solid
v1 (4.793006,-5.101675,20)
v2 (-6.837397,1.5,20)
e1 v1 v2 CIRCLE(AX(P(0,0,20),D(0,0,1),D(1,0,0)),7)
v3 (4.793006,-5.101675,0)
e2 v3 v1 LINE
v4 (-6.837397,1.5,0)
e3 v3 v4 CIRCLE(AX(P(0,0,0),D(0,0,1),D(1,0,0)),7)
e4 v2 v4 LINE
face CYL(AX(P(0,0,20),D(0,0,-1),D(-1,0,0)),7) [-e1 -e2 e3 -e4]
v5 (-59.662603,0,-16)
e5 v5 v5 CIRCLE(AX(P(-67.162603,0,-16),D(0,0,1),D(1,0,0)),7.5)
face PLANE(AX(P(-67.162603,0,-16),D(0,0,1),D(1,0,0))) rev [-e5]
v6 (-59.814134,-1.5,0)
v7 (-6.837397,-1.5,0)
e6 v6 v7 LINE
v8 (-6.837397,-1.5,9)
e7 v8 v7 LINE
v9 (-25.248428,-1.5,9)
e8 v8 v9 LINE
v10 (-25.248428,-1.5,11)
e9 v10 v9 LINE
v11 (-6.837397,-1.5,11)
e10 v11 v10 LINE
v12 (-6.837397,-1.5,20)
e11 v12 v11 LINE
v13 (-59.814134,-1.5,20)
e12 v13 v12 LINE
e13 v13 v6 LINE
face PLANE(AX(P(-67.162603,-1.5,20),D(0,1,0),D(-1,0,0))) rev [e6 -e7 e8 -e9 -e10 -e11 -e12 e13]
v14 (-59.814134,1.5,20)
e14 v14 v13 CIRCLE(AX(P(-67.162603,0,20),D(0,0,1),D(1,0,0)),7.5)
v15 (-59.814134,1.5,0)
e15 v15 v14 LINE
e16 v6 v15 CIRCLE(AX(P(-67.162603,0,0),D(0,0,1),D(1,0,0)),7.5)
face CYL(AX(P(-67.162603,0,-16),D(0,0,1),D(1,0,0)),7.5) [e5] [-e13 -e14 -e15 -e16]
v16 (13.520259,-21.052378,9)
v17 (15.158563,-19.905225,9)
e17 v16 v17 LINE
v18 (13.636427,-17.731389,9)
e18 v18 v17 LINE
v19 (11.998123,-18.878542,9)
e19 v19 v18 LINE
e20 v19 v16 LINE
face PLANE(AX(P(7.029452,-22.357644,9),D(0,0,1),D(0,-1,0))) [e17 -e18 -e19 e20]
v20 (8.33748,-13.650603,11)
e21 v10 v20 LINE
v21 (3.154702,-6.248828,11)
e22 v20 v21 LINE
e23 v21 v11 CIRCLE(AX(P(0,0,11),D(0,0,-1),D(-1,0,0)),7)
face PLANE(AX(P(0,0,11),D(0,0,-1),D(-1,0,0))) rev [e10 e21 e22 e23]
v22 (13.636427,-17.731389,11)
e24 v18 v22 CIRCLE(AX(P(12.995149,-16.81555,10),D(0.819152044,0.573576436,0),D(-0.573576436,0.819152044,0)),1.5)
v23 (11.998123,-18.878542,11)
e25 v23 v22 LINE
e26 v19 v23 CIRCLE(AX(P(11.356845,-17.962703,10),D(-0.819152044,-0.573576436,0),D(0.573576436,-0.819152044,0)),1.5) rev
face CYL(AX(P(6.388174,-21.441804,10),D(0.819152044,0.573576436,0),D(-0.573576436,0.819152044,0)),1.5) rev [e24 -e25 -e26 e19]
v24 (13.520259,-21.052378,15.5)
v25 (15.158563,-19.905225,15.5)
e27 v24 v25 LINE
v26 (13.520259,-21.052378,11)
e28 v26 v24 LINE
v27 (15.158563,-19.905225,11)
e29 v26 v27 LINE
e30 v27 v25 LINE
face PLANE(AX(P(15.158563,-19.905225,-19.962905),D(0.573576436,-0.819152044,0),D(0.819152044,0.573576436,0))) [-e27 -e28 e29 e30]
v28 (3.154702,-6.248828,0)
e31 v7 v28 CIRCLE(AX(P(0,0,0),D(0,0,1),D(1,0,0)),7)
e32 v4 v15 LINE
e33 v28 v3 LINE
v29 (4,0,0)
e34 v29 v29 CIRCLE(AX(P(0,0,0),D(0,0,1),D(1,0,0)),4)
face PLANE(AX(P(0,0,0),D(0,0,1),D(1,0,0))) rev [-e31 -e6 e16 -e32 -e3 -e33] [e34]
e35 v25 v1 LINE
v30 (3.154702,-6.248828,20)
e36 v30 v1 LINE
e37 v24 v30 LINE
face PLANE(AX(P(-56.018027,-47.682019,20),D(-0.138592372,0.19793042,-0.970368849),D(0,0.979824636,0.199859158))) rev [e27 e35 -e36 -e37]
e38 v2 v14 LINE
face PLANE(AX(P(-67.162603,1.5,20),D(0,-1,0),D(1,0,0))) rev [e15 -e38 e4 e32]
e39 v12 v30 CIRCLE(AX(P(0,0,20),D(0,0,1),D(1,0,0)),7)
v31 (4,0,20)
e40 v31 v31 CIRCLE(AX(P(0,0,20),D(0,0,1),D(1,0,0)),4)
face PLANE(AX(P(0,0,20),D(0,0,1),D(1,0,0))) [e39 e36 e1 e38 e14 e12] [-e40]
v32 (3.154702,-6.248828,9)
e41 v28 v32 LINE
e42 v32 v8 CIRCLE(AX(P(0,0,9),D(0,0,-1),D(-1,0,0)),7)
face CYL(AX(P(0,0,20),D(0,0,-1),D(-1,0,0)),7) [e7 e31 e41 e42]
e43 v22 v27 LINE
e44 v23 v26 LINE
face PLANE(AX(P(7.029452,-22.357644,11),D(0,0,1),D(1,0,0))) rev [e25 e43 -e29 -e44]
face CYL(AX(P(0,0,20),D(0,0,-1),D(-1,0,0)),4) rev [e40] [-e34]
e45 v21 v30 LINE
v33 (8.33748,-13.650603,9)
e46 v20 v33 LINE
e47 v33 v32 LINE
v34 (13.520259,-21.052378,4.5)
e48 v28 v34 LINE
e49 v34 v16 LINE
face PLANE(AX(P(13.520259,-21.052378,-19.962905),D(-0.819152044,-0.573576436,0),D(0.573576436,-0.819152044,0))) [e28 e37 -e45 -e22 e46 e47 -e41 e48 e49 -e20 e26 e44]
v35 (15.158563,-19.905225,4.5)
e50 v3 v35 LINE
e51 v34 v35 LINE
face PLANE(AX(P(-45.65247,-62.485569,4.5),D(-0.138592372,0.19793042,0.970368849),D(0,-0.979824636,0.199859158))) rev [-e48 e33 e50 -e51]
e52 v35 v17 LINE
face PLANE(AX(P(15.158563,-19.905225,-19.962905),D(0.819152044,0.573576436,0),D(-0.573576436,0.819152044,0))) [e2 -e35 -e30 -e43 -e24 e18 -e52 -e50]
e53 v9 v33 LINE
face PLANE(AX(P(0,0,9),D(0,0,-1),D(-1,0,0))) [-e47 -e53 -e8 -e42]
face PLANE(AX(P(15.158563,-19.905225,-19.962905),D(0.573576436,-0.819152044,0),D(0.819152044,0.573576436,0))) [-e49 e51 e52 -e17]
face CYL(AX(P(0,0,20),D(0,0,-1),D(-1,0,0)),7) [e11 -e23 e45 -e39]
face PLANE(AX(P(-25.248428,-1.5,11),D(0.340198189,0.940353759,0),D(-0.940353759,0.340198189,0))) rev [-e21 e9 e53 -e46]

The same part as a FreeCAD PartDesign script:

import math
import FreeCAD as App
import Part
import Sketcher
Q = App.Units.Quantity


def add_polygon(sketch, points):
    """Adds a closed chain of lines whose ends are joined by coincident constraints."""
    first, n = sketch.GeometryCount, len(points)
    for a, b in zip(points, points[1:] + points[:1]):
        sketch.addGeometry(Part.LineSegment(App.Vector(*a, 0), App.Vector(*b, 0)), False)
    for i in range(n):
        sketch.addConstraint(Sketcher.Constraint("Coincident", first + i, 2, first + (i + 1) % n, 1))

doc = App.newDocument("Part")
params = doc.addObject("Spreadsheet::Sheet", "Params")
for row, (alias, value) in enumerate([
    ("sketch1_diameter", "8 mm"),
    ("sketch1_radius", "7 mm"),
    ("sketch1_height", "3 mm"),
    ("pad1_length", "20 mm"),
    ("sketch2_diameter", "15 mm"),
    ("pad2_length", "36 mm"),
    ("sketch3_radius", "7 mm"),
    ("sketch3_length", "2 mm"),
    ("pad3_length", "20 mm"),
    ("sketch4_radius", "1.5 mm"),
    ("sketch4_width", "2 mm"),
    ("pocket1_length", "2 mm"),
    ("pad4_length", "2 mm"),
], start=1):
    params.set(f"A{row}", alias)
    params.set(f"B{row}", "=" + value)
    params.setAlias(f"B{row}", alias)

body = doc.addObject("PartDesign::Body", "Body")

# Sketch on XY plane
sketch1 = body.newObject("Sketcher::SketchObject", "Sketch")
sketch1.AttachmentSupport = (doc.getObject("XY_Plane"), [""])
sketch1.MapMode = "FlatFace"
sketch1.addGeometry([
    Part.LineSegment(App.Vector(-6.837397, 1.5, 0), App.Vector(-67.162603, 1.5, 0)),  # 0
    Part.LineSegment(App.Vector(-67.162603, 1.5, 0), App.Vector(-67.162603, -1.5, 0)),  # 1
    Part.LineSegment(App.Vector(-67.162603, -1.5, 0), App.Vector(-6.837397, -1.5, 0)),  # 2
    Part.ArcOfCircle(Part.Circle(App.Vector(0, 0, 0), App.Vector(0, 0, 1), 7), math.radians(-167.626375), math.radians(167.626375)),  # 3
    Part.Circle(App.Vector(0, 0, 0), App.Vector(0, 0, 1), 4),  # 4
], False)
sketch1.addConstraint([
    Sketcher.Constraint("Coincident", 0, 2, 1, 1),
    Sketcher.Constraint("Coincident", 1, 2, 2, 1),
    Sketcher.Constraint("Coincident", 2, 2, 3, 1),
    Sketcher.Constraint("Coincident", 3, 2, 0, 1),
    Sketcher.Constraint("Horizontal", 0),
    Sketcher.Constraint("Vertical", 1),
    Sketcher.Constraint("Horizontal", 2),
    Sketcher.Constraint("Coincident", 3, 3, -1, 1),
    Sketcher.Constraint("Coincident", 4, 3, -1, 1),
    Sketcher.Constraint("Vertical", 2, 2, 3, 2),
    Sketcher.Constraint("Diameter", 4, 8.0),
    Sketcher.Constraint("Radius", 3, 7.0),
    Sketcher.Constraint("DistanceY", 1, 2, 1, 1, 3.0),
    Sketcher.Constraint("DistanceX", 0, 2, 0, 1, 60.325206),
])
sketch1.setExpression("Constraints[10]", "Params.sketch1_diameter")
sketch1.setExpression("Constraints[11]", "Params.sketch1_radius")
sketch1.setExpression("Constraints[12]", "Params.sketch1_height")
pad1 = body.newObject("PartDesign::Pad", "Pad")
pad1.Profile = sketch1
pad1.setExpression("Length", "Params.pad1_length")

# Sketch on XY plane
sketch2 = body.newObject("Sketcher::SketchObject", "Sketch001")
sketch2.AttachmentSupport = (doc.getObject("XY_Plane"), [""])
sketch2.MapMode = "FlatFace"
sketch2.AttachmentOffset = App.Placement(App.Vector(0, 0, 20), App.Rotation())
sketch2.addGeometry(Part.Circle(App.Vector(-67.162603, 0, 0), App.Vector(0, 0, 1), 7.5), False)
sketch2.addConstraint([
    Sketcher.Constraint("PointOnObject", 0, 3, -1),
    Sketcher.Constraint("Diameter", 0, 15.0),
    Sketcher.Constraint("DistanceX", 0, 3, -1, 1, 67.162603),
])
sketch2.setExpression("Constraints[1]", "Params.sketch2_diameter")
pad2 = body.newObject("PartDesign::Pad", "Pad001")
pad2.Profile = sketch2
pad2.setExpression("Length", "Params.pad2_length")
pad2.Reversed = True

# Sketch on XY plane
sketch3 = body.newObject("Sketcher::SketchObject", "Sketch002")
sketch3.AttachmentSupport = (doc.getObject("XY_Plane"), [""])
sketch3.MapMode = "FlatFace"
sketch3.addGeometry([
    Part.LineSegment(App.Vector(13.520259, -21.052378, 0), App.Vector(15.158563, -19.905225, 0)),
    Part.LineSegment(App.Vector(15.158563, -19.905225, 0), App.Vector(4.793006, -5.101675, 0)),
    Part.ArcOfCircle(Part.Circle(App.Vector(0, 0, 0), App.Vector(0, 0, 1), 7), math.radians(-63.213211), math.radians(-46.786789)),
    Part.LineSegment(App.Vector(3.154702, -6.248828, 0), App.Vector(13.520259, -21.052378, 0)),
], False)
sketch3.addConstraint([
    Sketcher.Constraint("Coincident", 0, 2, 1, 1),
    Sketcher.Constraint("Coincident", 1, 2, 2, 2),
    Sketcher.Constraint("Coincident", 2, 1, 3, 1),
    Sketcher.Constraint("Coincident", 3, 2, 0, 1),
    Sketcher.Constraint("Coincident", 2, 3, -1, 1),
    Sketcher.Constraint("Perpendicular", 0, 1),
    Sketcher.Constraint("Parallel", 1, 3),
    Sketcher.Constraint("Equal", 1, 3),
    Sketcher.Constraint("Radius", 2, 7.0),
    Sketcher.Constraint("Angle", 0, Q("35 deg")),
    Sketcher.Constraint("Distance", 0, 2.0),
    Sketcher.Constraint("DistanceX", -1, 1, 3, 2, 13.520259),
])
sketch3.setExpression("Constraints[8]", "Params.sketch3_radius")
sketch3.setExpression("Constraints[10]", "Params.sketch3_length")
pad3 = body.newObject("PartDesign::Pad", "Pad002")
pad3.Profile = sketch3
pad3.setExpression("Length", "Params.pad3_length")

# Sketch on an angled plane
sketch4 = body.newObject("Sketcher::SketchObject", "Sketch003")
sketch4.Placement = App.Placement(App.Vector(0.819152, 0.573576, 0), App.Rotation(App.Vector(0, 0, -1), App.Vector(-0.573576436, 0.819152044, 0), App.Vector(0.819152044, 0.573576436, 0), "ZXY"))
sketch4.addGeometry([
    Part.LineSegment(App.Vector(-11, -22.346237, 0), App.Vector(-11, -25, 0)),
    Part.LineSegment(App.Vector(-11, -25, 0), App.Vector(-9, -25, 0)),
    Part.LineSegment(App.Vector(-9, -25, 0), App.Vector(-9, -22.346237, 0)),
    Part.ArcOfCircle(Part.Circle(App.Vector(-10, -21.228203, 0), App.Vector(0, 0, 1), 1.5), math.radians(-48.189685), math.radians(228.189685)),
], False)
sketch4.addConstraint([
    Sketcher.Constraint("Coincident", 0, 2, 1, 1),
    Sketcher.Constraint("Coincident", 1, 2, 2, 1),
    Sketcher.Constraint("Coincident", 2, 2, 3, 1),
    Sketcher.Constraint("Coincident", 3, 2, 0, 1),
    Sketcher.Constraint("Vertical", 0),
    Sketcher.Constraint("Horizontal", 1),
    Sketcher.Constraint("Vertical", 2),
    Sketcher.Constraint("Horizontal", 2, 2, 3, 2),
    Sketcher.Constraint("Radius", 3, 1.5),
    Sketcher.Constraint("DistanceX", 1, 1, 1, 2, 2.0),
    Sketcher.Constraint("DistanceX", 3, 3, -1, 1, 10.0),
    Sketcher.Constraint("DistanceY", 0, 2, -1, 1, 25.0),
    Sketcher.Constraint("DistanceY", 0, 2, 0, 1, 2.653763),
])
sketch4.setExpression("Constraints[8]", "Params.sketch4_radius")
sketch4.setExpression("Constraints[9]", "Params.sketch4_width")
pocket1 = body.newObject("PartDesign::Pocket", "Pocket")
pocket1.Profile = sketch4
pocket1.setExpression("Length", "Params.pocket1_length")

# Sketch on an angled plane
sketch5 = body.newObject("Sketcher::SketchObject", "Sketch004")
sketch5.Placement = App.Placement(App.Vector(0.819152, 0.573576, 0), App.Rotation(App.Vector(0, 0, -1), App.Vector(-0.573576436, 0.819152044, 0), App.Vector(0.819152044, 0.573576436, 0), "ZXY"))
add_polygon(sketch5, [(-15.5, -25), (-20, -6.928203), (-21.379774, -6.621099), (-21.379774, -25)])  # lines 0-3
sketch5.addConstraint([
    Sketcher.Constraint("Vertical", 2),
    Sketcher.Constraint("Horizontal", 3),
    Sketcher.Constraint("DistanceX", 0, 2, -1, 1, 20.0),
    Sketcher.Constraint("DistanceY", 2, 2, -1, 1, 25.0),
    Sketcher.Constraint("DistanceX", 3, 2, -1, 1, 15.5),
    Sketcher.Constraint("DistanceY", 2, 2, 2, 1, 18.378901),
    Sketcher.Constraint("Distance", 1, 1.413538),
    Sketcher.Constraint("DistanceX", 3, 1, 3, 2, 5.879774),
])
pocket2 = body.newObject("PartDesign::Pocket", "Pocket001")
pocket2.Profile = sketch5
pocket2.Type = "UpToFirst"

# Sketch on an angled plane
sketch6 = body.newObject("Sketcher::SketchObject", "Sketch005")
sketch6.Placement = App.Placement(App.Vector(0.819152, 0.573576, 0), App.Rotation(App.Vector(0, 0, -1), App.Vector(-0.573576436, 0.819152044, 0), App.Vector(0.819152044, 0.573576436, 0), "ZXY"))
add_polygon(sketch6, [(1.414098, -6.928203), (0, -6.928203), (-4.5, -25), (1.414098, -25)])  # lines 0-3
sketch6.addConstraint([
    Sketcher.Constraint("Horizontal", 0),
    Sketcher.Constraint("Horizontal", 2),
    Sketcher.Constraint("Vertical", 3),
    Sketcher.Constraint("PointOnObject", 0, 2, -2),
    Sketcher.Constraint("DistanceY", 1, 2, -1, 1, 25.0),
    Sketcher.Constraint("DistanceX", 1, 2, -1, 1, 4.5),
    Sketcher.Constraint("DistanceX", 0, 2, 0, 1, 1.414098),
    Sketcher.Constraint("DistanceY", 3, 1, 3, 2, 18.071797),
])
pocket3 = body.newObject("PartDesign::Pocket", "Pocket002")
pocket3.Profile = sketch6
pocket3.Type = "UpToFirst"

# Sketch on XY plane
sketch7 = body.newObject("Sketcher::SketchObject", "Sketch006")
sketch7.AttachmentSupport = (doc.getObject("XY_Plane"), [""])
sketch7.MapMode = "FlatFace"
sketch7.AttachmentOffset = App.Placement(App.Vector(0, 0, 9), App.Rotation())
add_polygon(sketch7, [(-25.248428, -1.5), (8.33748, -13.650603), (3.154702, -6.248828), (-6.837397, -1.5)])  # lines 0-3
sketch7.addConstraint([
    Sketcher.Constraint("Horizontal", 3),
    Sketcher.Constraint("Angle", 1, Q("125 deg")),
    Sketcher.Constraint("DistanceY", 2, 2, -1, 1, 1.5),
    Sketcher.Constraint("Distance", 1, 9.035898),
    Sketcher.Constraint("DistanceX", 3, 2, 3, 1, 18.41103),
    Sketcher.Constraint("DistanceX", 2, 2, 1, 2, 9.992099),
    Sketcher.Constraint("Distance", 0, 35.716248),
    Sketcher.Constraint("DistanceX", -1, 1, 0, 2, 8.33748),
])
pad4 = body.newObject("PartDesign::Pad", "Pad003")
pad4.Profile = sketch7
pad4.setExpression("Length", "Params.pad4_length")

doc.recompute()
